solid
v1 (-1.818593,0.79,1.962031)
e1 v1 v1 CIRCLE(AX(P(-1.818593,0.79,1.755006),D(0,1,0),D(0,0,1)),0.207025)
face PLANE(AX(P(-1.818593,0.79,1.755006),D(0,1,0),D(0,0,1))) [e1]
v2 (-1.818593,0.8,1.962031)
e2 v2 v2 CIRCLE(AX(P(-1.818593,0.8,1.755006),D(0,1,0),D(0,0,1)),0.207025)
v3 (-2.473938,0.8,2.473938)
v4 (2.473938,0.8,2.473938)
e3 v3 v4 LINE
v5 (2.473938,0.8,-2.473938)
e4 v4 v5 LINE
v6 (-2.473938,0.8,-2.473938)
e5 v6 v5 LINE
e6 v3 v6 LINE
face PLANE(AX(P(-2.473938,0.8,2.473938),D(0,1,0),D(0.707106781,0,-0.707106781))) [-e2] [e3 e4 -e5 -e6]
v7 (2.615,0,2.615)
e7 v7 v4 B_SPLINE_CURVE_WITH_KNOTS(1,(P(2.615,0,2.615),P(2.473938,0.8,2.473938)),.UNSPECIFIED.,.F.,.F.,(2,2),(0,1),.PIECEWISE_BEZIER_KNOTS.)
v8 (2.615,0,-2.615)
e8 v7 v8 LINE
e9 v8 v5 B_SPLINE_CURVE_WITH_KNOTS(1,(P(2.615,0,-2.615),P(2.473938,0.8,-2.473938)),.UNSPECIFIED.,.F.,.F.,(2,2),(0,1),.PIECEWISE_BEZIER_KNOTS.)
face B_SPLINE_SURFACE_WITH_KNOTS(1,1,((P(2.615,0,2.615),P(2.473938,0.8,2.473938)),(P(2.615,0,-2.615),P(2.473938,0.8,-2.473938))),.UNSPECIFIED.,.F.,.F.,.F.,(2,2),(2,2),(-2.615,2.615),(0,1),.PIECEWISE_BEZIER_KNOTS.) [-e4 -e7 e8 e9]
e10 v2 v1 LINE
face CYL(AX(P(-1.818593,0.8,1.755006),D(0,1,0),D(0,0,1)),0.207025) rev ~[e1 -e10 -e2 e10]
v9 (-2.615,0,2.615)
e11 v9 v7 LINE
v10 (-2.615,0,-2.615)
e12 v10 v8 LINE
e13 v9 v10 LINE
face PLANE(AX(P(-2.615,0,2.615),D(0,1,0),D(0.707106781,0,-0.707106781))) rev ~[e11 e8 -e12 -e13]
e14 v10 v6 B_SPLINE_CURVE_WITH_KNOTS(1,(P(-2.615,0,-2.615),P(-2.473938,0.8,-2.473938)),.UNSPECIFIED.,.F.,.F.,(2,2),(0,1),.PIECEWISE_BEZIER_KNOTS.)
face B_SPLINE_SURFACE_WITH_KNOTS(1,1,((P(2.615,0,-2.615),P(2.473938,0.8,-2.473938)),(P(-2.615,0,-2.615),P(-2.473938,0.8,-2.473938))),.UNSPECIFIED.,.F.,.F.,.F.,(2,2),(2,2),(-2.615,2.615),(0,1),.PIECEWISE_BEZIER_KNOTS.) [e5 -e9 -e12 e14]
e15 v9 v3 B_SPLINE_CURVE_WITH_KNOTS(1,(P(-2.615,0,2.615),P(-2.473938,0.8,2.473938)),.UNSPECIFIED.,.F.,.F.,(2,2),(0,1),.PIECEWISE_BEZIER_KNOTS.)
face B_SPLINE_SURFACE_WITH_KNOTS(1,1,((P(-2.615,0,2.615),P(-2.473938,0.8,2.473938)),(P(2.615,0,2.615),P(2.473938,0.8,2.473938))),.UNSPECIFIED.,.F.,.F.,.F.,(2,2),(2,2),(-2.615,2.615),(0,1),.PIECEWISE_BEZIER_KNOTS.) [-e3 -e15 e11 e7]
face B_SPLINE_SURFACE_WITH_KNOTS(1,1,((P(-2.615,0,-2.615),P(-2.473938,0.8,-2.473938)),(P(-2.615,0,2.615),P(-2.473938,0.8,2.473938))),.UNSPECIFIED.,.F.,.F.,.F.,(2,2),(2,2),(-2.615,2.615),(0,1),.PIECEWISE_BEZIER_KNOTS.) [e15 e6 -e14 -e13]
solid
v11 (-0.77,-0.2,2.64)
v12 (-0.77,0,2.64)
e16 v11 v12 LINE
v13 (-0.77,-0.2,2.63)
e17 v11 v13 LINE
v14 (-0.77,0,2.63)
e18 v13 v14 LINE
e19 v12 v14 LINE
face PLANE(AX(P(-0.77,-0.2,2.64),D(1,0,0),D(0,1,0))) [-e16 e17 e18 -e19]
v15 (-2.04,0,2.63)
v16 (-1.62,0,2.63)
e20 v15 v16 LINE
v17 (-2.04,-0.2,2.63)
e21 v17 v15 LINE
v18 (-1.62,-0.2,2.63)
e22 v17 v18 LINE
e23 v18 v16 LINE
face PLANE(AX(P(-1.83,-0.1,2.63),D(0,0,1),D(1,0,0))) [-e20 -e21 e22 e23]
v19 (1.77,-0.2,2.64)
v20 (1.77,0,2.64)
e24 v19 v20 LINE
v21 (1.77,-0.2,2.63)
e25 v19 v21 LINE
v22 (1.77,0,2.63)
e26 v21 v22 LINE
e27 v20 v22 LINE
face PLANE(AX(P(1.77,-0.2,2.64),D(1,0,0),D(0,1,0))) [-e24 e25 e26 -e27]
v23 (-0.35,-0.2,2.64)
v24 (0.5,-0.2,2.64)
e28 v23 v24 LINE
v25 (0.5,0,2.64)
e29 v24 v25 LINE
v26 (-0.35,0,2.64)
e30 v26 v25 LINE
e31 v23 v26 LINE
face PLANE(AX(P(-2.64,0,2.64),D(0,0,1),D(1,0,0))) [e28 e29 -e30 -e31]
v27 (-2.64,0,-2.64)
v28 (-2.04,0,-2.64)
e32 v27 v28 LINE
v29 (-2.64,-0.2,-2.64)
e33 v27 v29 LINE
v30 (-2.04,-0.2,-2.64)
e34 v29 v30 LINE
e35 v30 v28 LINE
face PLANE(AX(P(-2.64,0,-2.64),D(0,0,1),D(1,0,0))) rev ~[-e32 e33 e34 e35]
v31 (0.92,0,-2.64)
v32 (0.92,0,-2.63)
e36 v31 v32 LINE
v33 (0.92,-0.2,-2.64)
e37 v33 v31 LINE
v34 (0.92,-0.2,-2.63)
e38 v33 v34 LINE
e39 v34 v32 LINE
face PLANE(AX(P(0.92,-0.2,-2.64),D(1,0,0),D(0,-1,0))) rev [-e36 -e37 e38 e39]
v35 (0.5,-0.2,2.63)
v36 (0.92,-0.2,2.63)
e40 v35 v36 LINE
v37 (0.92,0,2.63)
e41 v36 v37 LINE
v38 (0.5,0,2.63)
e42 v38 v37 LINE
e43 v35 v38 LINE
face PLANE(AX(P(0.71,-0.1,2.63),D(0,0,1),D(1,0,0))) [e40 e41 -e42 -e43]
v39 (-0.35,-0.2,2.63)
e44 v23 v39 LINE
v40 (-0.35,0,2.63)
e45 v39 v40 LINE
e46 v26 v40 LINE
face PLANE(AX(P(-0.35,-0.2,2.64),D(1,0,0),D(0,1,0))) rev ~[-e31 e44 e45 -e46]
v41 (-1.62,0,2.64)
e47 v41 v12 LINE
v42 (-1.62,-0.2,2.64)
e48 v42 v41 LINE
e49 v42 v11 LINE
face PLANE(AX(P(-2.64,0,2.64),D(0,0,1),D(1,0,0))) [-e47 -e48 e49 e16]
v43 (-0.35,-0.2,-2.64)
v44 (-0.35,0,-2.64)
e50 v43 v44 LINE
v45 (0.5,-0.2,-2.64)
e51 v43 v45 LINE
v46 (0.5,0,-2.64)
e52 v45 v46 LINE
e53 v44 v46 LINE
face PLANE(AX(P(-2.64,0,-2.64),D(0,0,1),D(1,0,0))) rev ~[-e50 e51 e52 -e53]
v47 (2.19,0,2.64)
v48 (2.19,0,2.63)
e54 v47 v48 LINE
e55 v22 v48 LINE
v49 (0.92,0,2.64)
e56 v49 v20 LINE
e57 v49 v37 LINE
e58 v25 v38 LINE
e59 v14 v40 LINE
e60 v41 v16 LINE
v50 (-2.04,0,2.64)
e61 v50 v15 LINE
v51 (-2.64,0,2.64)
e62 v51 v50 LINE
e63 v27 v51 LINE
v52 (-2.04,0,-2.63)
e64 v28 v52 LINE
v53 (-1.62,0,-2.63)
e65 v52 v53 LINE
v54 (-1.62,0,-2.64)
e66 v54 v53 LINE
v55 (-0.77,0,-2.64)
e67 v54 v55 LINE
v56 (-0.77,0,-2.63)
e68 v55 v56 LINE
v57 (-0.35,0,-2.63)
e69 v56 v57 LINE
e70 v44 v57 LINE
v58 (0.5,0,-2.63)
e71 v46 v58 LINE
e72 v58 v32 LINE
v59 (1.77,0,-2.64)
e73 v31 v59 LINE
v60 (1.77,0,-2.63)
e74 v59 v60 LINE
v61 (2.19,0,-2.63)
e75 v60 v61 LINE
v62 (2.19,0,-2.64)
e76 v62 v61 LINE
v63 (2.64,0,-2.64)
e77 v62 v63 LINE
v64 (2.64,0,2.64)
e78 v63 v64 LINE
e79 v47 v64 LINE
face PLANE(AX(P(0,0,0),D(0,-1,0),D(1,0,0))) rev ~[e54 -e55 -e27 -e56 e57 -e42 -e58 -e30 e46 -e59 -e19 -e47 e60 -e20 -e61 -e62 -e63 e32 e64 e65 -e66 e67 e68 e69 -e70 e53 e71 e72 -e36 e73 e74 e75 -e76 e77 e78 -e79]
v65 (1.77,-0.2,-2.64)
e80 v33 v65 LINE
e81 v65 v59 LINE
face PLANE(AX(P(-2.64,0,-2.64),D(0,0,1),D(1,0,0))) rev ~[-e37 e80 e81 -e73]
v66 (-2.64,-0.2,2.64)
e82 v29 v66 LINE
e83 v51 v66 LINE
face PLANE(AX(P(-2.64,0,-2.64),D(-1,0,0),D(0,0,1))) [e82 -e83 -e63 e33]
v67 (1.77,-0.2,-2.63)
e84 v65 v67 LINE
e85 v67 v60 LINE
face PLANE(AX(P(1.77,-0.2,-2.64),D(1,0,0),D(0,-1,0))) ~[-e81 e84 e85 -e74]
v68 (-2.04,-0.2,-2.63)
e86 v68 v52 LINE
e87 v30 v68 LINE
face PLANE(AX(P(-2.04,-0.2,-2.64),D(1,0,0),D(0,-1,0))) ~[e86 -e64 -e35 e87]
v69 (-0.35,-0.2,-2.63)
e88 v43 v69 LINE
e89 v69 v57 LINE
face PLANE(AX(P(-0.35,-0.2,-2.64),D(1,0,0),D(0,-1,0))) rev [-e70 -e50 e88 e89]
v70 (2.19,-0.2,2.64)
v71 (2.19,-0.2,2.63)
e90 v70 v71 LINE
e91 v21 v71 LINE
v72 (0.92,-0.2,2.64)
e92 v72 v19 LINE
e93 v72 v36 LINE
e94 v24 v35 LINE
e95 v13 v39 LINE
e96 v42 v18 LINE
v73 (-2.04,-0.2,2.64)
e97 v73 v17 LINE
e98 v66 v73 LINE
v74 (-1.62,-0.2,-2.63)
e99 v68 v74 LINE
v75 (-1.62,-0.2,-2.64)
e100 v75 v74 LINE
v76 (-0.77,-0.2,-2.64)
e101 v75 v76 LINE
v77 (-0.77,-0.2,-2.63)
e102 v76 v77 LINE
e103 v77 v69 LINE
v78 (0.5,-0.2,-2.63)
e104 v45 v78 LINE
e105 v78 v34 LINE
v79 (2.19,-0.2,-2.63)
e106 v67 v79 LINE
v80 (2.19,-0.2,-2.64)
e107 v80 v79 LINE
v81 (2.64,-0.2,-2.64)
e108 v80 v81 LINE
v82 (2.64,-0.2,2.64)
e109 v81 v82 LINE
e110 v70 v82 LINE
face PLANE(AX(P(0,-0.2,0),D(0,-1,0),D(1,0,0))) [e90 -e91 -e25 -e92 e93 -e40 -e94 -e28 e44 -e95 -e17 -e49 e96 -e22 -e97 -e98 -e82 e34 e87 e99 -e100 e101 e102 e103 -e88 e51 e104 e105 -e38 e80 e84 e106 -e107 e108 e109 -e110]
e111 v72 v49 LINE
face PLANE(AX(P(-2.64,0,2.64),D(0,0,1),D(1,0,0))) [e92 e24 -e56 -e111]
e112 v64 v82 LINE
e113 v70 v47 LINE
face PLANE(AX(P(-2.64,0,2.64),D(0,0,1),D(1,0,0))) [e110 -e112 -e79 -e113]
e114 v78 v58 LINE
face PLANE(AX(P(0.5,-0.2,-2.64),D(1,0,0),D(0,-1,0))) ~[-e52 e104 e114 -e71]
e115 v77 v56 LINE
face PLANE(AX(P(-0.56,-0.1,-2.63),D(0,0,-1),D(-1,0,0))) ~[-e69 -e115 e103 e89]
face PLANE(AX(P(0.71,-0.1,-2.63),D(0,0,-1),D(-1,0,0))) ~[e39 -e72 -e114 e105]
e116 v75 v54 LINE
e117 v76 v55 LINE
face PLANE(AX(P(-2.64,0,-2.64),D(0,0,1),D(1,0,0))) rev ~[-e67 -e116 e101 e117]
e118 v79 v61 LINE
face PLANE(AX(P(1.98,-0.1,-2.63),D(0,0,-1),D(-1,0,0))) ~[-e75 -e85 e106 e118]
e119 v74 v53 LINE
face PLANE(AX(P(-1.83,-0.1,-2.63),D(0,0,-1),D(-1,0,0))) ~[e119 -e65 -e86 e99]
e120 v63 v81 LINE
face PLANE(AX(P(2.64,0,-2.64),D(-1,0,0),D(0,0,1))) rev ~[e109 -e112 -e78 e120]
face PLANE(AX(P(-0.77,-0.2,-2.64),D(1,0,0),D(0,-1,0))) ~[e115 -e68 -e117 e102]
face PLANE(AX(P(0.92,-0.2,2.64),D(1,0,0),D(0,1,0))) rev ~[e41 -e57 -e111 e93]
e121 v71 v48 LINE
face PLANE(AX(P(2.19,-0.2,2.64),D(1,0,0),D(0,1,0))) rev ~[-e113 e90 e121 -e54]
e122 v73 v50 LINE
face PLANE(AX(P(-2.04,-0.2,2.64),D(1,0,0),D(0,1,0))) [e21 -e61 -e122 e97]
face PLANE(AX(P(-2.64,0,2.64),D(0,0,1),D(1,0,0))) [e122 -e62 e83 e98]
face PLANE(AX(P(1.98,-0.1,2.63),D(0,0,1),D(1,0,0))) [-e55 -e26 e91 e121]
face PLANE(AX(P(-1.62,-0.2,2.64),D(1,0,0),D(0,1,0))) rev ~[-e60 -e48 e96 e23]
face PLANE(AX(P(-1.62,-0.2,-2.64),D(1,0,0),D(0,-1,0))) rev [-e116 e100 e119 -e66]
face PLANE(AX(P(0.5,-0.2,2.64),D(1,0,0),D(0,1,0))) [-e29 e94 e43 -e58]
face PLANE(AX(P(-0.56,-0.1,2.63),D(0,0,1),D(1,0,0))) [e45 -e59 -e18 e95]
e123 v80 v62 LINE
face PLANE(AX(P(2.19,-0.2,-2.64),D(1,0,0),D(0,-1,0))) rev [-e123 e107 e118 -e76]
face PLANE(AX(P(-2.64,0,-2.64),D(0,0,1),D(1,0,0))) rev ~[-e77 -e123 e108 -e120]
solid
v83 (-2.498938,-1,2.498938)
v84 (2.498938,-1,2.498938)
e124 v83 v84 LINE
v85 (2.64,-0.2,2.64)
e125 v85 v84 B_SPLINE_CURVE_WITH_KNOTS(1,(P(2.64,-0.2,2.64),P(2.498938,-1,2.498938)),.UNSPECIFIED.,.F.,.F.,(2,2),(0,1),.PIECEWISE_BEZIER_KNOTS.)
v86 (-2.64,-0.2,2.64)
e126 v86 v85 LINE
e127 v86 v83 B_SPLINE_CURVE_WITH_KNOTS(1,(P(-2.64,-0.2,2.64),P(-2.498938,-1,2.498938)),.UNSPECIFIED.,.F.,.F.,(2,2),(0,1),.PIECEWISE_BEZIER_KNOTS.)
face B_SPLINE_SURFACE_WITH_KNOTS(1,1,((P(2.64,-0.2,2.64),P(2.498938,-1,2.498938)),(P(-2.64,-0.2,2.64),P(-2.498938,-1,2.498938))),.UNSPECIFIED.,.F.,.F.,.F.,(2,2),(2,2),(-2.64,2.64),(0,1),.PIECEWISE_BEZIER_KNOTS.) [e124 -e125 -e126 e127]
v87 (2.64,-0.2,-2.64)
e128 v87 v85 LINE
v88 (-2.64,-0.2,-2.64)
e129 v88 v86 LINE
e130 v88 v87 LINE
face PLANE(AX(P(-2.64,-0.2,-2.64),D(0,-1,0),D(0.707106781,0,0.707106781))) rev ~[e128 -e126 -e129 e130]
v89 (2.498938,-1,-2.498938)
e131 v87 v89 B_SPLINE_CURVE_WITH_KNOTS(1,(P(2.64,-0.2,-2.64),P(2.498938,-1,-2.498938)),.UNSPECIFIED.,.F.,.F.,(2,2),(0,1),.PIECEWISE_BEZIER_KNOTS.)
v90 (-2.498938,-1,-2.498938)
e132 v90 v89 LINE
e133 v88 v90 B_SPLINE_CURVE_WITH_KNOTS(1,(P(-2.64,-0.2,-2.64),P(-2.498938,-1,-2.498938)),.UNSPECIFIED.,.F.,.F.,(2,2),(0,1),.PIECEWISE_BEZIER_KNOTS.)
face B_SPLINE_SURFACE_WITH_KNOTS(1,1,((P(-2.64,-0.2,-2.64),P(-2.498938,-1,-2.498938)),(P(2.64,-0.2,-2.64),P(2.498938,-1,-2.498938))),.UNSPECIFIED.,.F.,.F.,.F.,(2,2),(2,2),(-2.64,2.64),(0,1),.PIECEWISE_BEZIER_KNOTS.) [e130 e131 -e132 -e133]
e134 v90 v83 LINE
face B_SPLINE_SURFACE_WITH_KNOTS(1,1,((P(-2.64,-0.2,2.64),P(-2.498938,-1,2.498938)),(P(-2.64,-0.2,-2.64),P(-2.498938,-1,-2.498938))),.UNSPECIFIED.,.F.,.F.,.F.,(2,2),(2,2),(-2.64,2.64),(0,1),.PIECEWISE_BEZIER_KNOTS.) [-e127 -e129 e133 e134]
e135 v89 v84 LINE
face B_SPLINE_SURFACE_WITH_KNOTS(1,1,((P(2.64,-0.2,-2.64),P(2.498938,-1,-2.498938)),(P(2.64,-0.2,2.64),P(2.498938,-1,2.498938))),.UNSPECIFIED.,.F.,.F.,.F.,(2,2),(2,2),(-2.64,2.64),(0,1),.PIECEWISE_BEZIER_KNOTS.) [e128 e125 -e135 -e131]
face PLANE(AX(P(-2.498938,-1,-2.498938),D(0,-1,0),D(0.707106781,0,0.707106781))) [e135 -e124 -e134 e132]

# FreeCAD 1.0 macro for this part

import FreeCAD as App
import Part
import Sketcher

V = App.Vector
Q = App.Units.Quantity


def add_polygon(sketch, points):
    """Adds a closed chain of lines whose ends are joined by coincident constraints."""
    first, n = sketch.GeometryCount, len(points)
    for a, b in zip(points, points[1:] + points[:1]):
        sketch.addGeometry(Part.LineSegment(App.Vector(*a, 0), App.Vector(*b, 0)), False)
    for i in range(n):
        sketch.addConstraint(Sketcher.Constraint("Coincident", first + i, 2, first + (i + 1) % n, 1))

doc = App.newDocument("Part")
body = doc.addObject("PartDesign::Body", "Body")

sketch1 = body.newObject("Sketcher::SketchObject", "Sketch")
sketch1.AttachmentSupport = (doc.getObject("XZ_Plane"), [""])
sketch1.MapMode = "FlatFace"
add_polygon(sketch1, [(-3, -3), (-3, 3), (3, 3), (3, -3)])
sketch1.addConstraint(Sketcher.Constraint("Vertical", 0))
sketch1.addConstraint(Sketcher.Constraint("Horizontal", 1))
sketch1.addConstraint(Sketcher.Constraint("Vertical", 2))
sketch1.addConstraint(Sketcher.Constraint("Horizontal", 3))
sketch1.addConstraint(Sketcher.Constraint("Symmetric", 0, 2, 2, 2, -1, 1))
sketch1.addConstraint(Sketcher.Constraint("Equal", 3, 0))
sketch1.addConstraint(Sketcher.Constraint("DistanceX", 1, 1, 1, 2, Q("5.23 mm")))
pad1 = body.newObject("PartDesign::Pad", "Pad")
pad1.Profile = sketch1
pad1.Length = 0.8
pad1.Reversed = True
pad1.TaperAngle = -10

sketch2 = body.newObject("Sketcher::SketchObject", "Sketch001")
sketch2.AttachmentSupport = (doc.getObject("XZ_Plane"), [""])
sketch2.MapMode = "FlatFace"
sketch2.AttachmentOffset = App.Placement(V(0, 0, -0.8), App.Rotation())
sketch2.addGeometry(Part.Circle(V(-1.82, 1.76, 0), V(0, 0, 1), 0.21), False)
sketch2.addConstraint(Sketcher.Constraint("Diameter", 0, Q("0.41405 mm")))
sketch2.addConstraint(Sketcher.Constraint("DistanceX", 0, 3, -1, 1, Q("1.818593 mm")))
sketch2.addConstraint(Sketcher.Constraint("DistanceY", -1, 1, 0, 3, Q("1.755006 mm")))
pocket1 = body.newObject("PartDesign::Pocket", "Pocket")
pocket1.Profile = sketch2
pocket1.Length = 0.01
pocket1.Reversed = True
body2 = doc.addObject("PartDesign::Body", "Body001")

sketch3 = body2.newObject("Sketcher::SketchObject", "Sketch002")
sketch3.AttachmentSupport = (doc.getObject("XZ_Plane001"), [""])
sketch3.MapMode = "FlatFace"
add_polygon(sketch3, [(-3, 3), (-3, -3), (3, -3), (3, 3)])
sketch3.addConstraint(Sketcher.Constraint("Vertical", 0))
sketch3.addConstraint(Sketcher.Constraint("Horizontal", 1))
sketch3.addConstraint(Sketcher.Constraint("Vertical", 2))
sketch3.addConstraint(Sketcher.Constraint("Horizontal", 3))
sketch3.addConstraint(Sketcher.Constraint("Symmetric", 0, 2, 2, 2, -1, 1))
sketch3.addConstraint(Sketcher.Constraint("Equal", 3, 0))
sketch3.addConstraint(Sketcher.Constraint("DistanceX", 1, 1, 1, 2, Q("5.28 mm")))
pad2 = body2.newObject("PartDesign::Pad", "Pad001")
pad2.Profile = sketch3
pad2.Length = 0.2

sketch4 = body2.newObject("Sketcher::SketchObject", "Sketch003")
sketch4.AttachmentSupport = (doc.getObject("XY_Plane001"), [""])
sketch4.MapMode = "FlatFace"
sketch4.AttachmentOffset = App.Placement(V(0, 0, 2.64), App.Rotation())
add_polygon(sketch4, [(-2.04, 0), (-2.04, -0.2), (-1.62, -0.2), (-1.62, 0)])
add_polygon(sketch4, [(-0.77, 0), (-0.77, -0.2), (-0.35, -0.2), (-0.35, 0)])
add_polygon(sketch4, [(0.5, 0), (0.5, -0.2), (0.92, -0.2), (0.92, 0)])
add_polygon(sketch4, [(1.77, 0), (1.77, -0.2), (2.19, -0.2), (2.19, 0)])
sketch4.addConstraint(Sketcher.Constraint("Vertical", 0))
sketch4.addConstraint(Sketcher.Constraint("Horizontal", 1))
sketch4.addConstraint(Sketcher.Constraint("Vertical", 2))
sketch4.addConstraint(Sketcher.Constraint("Horizontal", 3))
sketch4.addConstraint(Sketcher.Constraint("Vertical", 4))
sketch4.addConstraint(Sketcher.Constraint("Horizontal", 5))
sketch4.addConstraint(Sketcher.Constraint("Vertical", 6))
sketch4.addConstraint(Sketcher.Constraint("Horizontal", 7))
sketch4.addConstraint(Sketcher.Constraint("Vertical", 8))
sketch4.addConstraint(Sketcher.Constraint("Horizontal", 9))
sketch4.addConstraint(Sketcher.Constraint("Vertical", 10))
sketch4.addConstraint(Sketcher.Constraint("Horizontal", 11))
sketch4.addConstraint(Sketcher.Constraint("Vertical", 12))
sketch4.addConstraint(Sketcher.Constraint("Horizontal", 13))
sketch4.addConstraint(Sketcher.Constraint("Vertical", 14))
sketch4.addConstraint(Sketcher.Constraint("Horizontal", 15))
sketch4.addConstraint(Sketcher.Constraint("PointOnObject", 2, 2, -1))
sketch4.addConstraint(Sketcher.Constraint("PointOnObject", 6, 2, -1))
sketch4.addConstraint(Sketcher.Constraint("PointOnObject", 10, 2, -1))
sketch4.addConstraint(Sketcher.Constraint("PointOnObject", 14, 2, -1))
sketch4.addConstraint(Sketcher.Constraint("Horizontal", 1, 2, 4, 2))
sketch4.addConstraint(Sketcher.Constraint("Horizontal", 5, 2, 8, 2))
sketch4.addConstraint(Sketcher.Constraint("Horizontal", 9, 2, 12, 2))
sketch4.addConstraint(Sketcher.Constraint("Equal", 3, 5))
sketch4.addConstraint(Sketcher.Constraint("Equal", 7, 9))
sketch4.addConstraint(Sketcher.Constraint("Equal", 11, 13))
sketch4.addConstraint(Sketcher.Constraint("DistanceY", 0, 2, 0, 1, Q("0.2 mm")))
sketch4.addConstraint(Sketcher.Constraint("DistanceX", 1, 1, 1, 2, Q("0.42 mm")))
sketch4.addConstraint(Sketcher.Constraint("DistanceX", -1, 1, 8, 2, Q("0.5 mm")))
sketch4.addConstraint(Sketcher.Constraint("DistanceX", 0, 2, -1, 1, Q("2.04 mm")))
sketch4.addConstraint(Sketcher.Constraint("DistanceX", 4, 2, -1, 1, Q("0.77 mm")))
sketch4.addConstraint(Sketcher.Constraint("DistanceX", -1, 1, 12, 2, Q("1.77 mm")))
pocket2 = body2.newObject("PartDesign::Pocket", "Pocket001")
pocket2.Profile = sketch4
pocket2.Length = 0.01
doc.recompute()

mirrored = body2.newObject("PartDesign::Mirrored", "Mirrored")
mirrored.Originals = [pocket2]
mirrored.MirrorPlane = (doc.getObject("XY_Plane001"), [""])
body2.Tip = mirrored
body3 = doc.addObject("PartDesign::Body", "Body002")

sketch5 = body3.newObject("Sketcher::SketchObject", "Sketch004")
sketch5.AttachmentSupport = (doc.getObject("XZ_Plane002"), [""])
sketch5.MapMode = "FlatFace"
sketch5.AttachmentOffset = App.Placement(V(0, 0, 0.2), App.Rotation())
add_polygon(sketch5, [(-3, 3), (-3, -3), (3, -3), (3, 3)])
sketch5.addConstraint(Sketcher.Constraint("Vertical", 0))
sketch5.addConstraint(Sketcher.Constraint("Horizontal", 1))
sketch5.addConstraint(Sketcher.Constraint("Vertical", 2))
sketch5.addConstraint(Sketcher.Constraint("Horizontal", 3))
sketch5.addConstraint(Sketcher.Constraint("Symmetric", 0, 2, 2, 2, -1, 1))
sketch5.addConstraint(Sketcher.Constraint("Equal", 3, 0))
sketch5.addConstraint(Sketcher.Constraint("DistanceX", 1, 1, 1, 2, Q("5.28 mm")))
pad3 = body3.newObject("PartDesign::Pad", "Pad002")
pad3.Profile = sketch5
pad3.Length = 0.8
pad3.TaperAngle = -10

doc.recompute()
